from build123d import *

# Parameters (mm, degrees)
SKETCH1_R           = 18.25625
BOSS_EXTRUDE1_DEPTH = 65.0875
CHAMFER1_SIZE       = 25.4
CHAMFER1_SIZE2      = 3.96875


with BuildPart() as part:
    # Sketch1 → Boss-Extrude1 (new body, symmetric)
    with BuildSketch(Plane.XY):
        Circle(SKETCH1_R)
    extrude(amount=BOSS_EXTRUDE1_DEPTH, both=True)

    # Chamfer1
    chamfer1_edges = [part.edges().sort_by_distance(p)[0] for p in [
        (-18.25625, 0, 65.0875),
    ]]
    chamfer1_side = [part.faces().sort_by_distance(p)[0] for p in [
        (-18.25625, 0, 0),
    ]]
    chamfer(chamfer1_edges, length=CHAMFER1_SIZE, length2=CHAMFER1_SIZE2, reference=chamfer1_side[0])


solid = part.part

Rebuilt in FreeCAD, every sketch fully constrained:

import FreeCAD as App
import Part
import Sketcher
Q = App.Units.Quantity


def edges_at(feature, points):
    """Names of the edges that pass closest to the given points."""
    edges = feature.Shape.Edges
    near = lambda p: min(range(len(edges)), key=lambda i: edges[i].distToShape(Part.Vertex(*p))[0])
    return sorted({f"Edge{near(p) + 1}" for p in points})

doc = App.newDocument("Part")
body = doc.addObject("PartDesign::Body", "Body")

sketch1 = body.newObject("Sketcher::SketchObject", "Sketch")
sketch1.AttachmentSupport = (doc.getObject("XY_Plane"), [""])
sketch1.MapMode = "FlatFace"
sketch1.addGeometry(Part.Circle(App.Vector(0, 0, 0), App.Vector(0, 0, 1), 18), False)
sketch1.addConstraint(Sketcher.Constraint("Coincident", 0, 3, -1, 1))
sketch1.addConstraint(Sketcher.Constraint("Diameter", 0, Q("1.4375 in")))
pad1 = body.newObject("PartDesign::Pad", "Pad")
pad1.Profile = sketch1
pad1.Length = Q("5.125 in")
pad1.Midplane = True
doc.recompute()

chamfer = body.newObject("PartDesign::Chamfer", "Chamfer")
chamfer.Base = (pad1, edges_at(pad1, [(-18.256, 0, 65.088)]))
chamfer.ChamferType = "Two distances"
chamfer.Size = Q("1 in")
chamfer.Size2 = Q("0.15625 in")

doc.recompute()
